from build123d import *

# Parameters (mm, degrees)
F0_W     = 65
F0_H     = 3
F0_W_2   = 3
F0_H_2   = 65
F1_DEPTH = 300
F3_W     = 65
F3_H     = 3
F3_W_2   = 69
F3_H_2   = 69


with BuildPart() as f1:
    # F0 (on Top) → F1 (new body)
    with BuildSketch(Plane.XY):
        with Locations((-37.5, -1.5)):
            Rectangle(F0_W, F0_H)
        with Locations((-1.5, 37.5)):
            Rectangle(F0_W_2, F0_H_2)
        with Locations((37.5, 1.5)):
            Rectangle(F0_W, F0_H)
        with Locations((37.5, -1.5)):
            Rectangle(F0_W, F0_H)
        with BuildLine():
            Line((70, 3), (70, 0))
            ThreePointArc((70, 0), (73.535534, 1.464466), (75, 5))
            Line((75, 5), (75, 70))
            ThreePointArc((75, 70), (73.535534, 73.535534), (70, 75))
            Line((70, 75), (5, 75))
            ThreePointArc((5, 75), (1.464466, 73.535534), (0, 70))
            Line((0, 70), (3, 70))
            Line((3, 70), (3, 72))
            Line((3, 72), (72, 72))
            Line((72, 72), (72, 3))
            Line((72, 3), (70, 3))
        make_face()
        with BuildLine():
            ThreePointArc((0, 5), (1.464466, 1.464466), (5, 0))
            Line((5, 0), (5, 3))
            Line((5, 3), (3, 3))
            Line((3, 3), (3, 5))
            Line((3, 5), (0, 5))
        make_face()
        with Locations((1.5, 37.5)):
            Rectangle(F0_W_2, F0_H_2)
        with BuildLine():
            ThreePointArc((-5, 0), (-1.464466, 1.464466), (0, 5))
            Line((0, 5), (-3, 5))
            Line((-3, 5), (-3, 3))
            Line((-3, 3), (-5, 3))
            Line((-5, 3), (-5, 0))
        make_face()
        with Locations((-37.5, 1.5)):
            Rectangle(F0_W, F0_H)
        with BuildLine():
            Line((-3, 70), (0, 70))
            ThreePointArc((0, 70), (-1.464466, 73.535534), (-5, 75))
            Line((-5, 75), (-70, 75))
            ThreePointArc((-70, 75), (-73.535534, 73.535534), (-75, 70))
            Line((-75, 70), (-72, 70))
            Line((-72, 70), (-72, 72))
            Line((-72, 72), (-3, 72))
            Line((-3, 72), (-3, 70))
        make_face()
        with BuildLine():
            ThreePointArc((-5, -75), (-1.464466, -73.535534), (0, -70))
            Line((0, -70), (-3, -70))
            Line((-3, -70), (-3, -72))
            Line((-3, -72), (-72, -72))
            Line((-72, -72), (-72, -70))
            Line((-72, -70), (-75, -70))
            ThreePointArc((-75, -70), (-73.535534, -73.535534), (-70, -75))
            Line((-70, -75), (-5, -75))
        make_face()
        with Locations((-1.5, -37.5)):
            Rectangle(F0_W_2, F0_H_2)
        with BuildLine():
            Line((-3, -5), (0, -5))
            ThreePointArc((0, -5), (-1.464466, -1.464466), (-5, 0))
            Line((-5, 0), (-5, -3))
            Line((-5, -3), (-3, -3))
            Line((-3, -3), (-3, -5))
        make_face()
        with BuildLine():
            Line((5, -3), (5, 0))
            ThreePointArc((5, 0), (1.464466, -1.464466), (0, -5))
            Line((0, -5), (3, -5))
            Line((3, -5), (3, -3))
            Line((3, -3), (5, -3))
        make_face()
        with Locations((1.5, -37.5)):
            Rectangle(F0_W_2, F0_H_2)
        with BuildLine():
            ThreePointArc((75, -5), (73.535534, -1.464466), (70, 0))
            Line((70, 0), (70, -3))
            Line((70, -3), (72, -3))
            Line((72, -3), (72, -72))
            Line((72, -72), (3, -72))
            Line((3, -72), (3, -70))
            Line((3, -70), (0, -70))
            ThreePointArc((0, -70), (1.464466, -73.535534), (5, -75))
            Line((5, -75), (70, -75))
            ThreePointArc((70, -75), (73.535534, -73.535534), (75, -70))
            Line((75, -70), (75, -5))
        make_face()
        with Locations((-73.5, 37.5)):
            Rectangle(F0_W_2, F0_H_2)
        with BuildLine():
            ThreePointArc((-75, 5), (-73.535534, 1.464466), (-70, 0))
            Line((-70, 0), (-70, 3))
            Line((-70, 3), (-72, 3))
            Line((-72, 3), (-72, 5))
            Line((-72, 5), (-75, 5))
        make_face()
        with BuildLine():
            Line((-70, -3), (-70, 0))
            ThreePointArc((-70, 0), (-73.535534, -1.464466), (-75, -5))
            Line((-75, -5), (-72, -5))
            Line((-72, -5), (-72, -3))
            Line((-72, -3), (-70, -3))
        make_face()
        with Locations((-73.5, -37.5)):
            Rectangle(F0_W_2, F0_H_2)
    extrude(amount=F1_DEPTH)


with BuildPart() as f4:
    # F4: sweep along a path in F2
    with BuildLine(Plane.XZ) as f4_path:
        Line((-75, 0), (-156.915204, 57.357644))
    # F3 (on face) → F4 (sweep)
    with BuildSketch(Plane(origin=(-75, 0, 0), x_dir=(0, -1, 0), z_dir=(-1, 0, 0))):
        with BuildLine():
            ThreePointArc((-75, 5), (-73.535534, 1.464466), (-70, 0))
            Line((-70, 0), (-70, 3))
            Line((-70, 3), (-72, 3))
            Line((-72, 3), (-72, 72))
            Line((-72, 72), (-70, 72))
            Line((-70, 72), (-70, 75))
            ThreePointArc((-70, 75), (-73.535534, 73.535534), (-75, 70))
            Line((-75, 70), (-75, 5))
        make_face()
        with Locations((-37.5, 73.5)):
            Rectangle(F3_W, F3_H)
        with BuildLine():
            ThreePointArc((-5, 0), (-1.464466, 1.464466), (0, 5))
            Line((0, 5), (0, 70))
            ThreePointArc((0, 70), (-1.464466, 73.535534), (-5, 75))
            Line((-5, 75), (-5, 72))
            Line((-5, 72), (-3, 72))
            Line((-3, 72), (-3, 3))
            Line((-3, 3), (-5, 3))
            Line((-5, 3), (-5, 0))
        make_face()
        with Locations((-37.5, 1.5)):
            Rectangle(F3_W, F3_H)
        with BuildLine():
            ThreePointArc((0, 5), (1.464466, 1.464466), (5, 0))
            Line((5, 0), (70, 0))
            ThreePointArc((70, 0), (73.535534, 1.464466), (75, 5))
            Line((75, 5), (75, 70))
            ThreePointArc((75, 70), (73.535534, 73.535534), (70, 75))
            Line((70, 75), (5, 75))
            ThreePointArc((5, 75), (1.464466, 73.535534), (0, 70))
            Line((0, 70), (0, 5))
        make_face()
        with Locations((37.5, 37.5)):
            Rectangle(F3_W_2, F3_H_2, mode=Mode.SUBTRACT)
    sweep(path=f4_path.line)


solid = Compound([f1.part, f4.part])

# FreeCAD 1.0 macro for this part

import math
import FreeCAD as App
import Part
import Sketcher
Q = App.Units.Quantity

doc = App.newDocument("Part")
body = doc.addObject("PartDesign::Body", "Body")

# Sketch on XY plane
sketch1 = body.newObject("Sketcher::SketchObject", "Sketch")
sketch1.AttachmentSupport = (doc.getObject("XY_Plane"), [""])
sketch1.MapMode = "FlatFace"
sketch1.addGeometry([
    Part.ArcOfCircle(Part.Circle(App.Vector(-5, -70, 0), App.Vector(0, 0, 1), 5), math.radians(-90), math.radians(0)),  # 0
    Part.ArcOfCircle(Part.Circle(App.Vector(5, -70, 0), App.Vector(0, 0, 1), 5), math.radians(180), math.radians(270)),  # 1
    Part.LineSegment(App.Vector(5, -75, 0), App.Vector(70, -75, 0)),  # 2
    Part.ArcOfCircle(Part.Circle(App.Vector(70, -70, 0), App.Vector(0, 0, 1), 5), math.radians(-90), math.radians(0)),  # 3
    Part.LineSegment(App.Vector(75, -70, 0), App.Vector(75, -5, 0)),  # 4
    Part.ArcOfCircle(Part.Circle(App.Vector(70, -5, 0), App.Vector(0, 0, 1), 5), math.radians(0), math.radians(90)),  # 5
    Part.ArcOfCircle(Part.Circle(App.Vector(70, 5, 0), App.Vector(0, 0, 1), 5), math.radians(-90), math.radians(0)),  # 6
    Part.LineSegment(App.Vector(75, 5, 0), App.Vector(75, 70, 0)),  # 7
    Part.ArcOfCircle(Part.Circle(App.Vector(70, 70, 0), App.Vector(0, 0, 1), 5), math.radians(0), math.radians(90)),  # 8
    Part.LineSegment(App.Vector(70, 75, 0), App.Vector(5, 75, 0)),  # 9
    Part.ArcOfCircle(Part.Circle(App.Vector(5, 70, 0), App.Vector(0, 0, 1), 5), math.radians(90), math.radians(180)),  # 10
    Part.ArcOfCircle(Part.Circle(App.Vector(-5, 70, 0), App.Vector(0, 0, 1), 5), math.radians(0), math.radians(90)),  # 11
    Part.LineSegment(App.Vector(-5, 75, 0), App.Vector(-70, 75, 0)),  # 12
    Part.ArcOfCircle(Part.Circle(App.Vector(-70, 70, 0), App.Vector(0, 0, 1), 5), math.radians(90), math.radians(180)),  # 13
    Part.LineSegment(App.Vector(-75, 70, 0), App.Vector(-75, 5, 0)),  # 14
    Part.ArcOfCircle(Part.Circle(App.Vector(-70, 5, 0), App.Vector(0, 0, 1), 5), math.radians(180), math.radians(270)),  # 15
    Part.ArcOfCircle(Part.Circle(App.Vector(-70, -5, 0), App.Vector(0, 0, 1), 5), math.radians(90), math.radians(180)),  # 16
    Part.LineSegment(App.Vector(-75, -5, 0), App.Vector(-75, -70, 0)),  # 17
    Part.ArcOfCircle(Part.Circle(App.Vector(-70, -70, 0), App.Vector(0, 0, 1), 5), math.radians(180), math.radians(270)),  # 18
    Part.LineSegment(App.Vector(-70, -75, 0), App.Vector(-5, -75, 0)),  # 19
    Part.LineSegment(App.Vector(-72, -3, 0), App.Vector(-3, -3, 0)),  # 20
    Part.LineSegment(App.Vector(-3, -3, 0), App.Vector(-3, -72, 0)),  # 21
    Part.LineSegment(App.Vector(-3, -72, 0), App.Vector(-72, -72, 0)),  # 22
    Part.LineSegment(App.Vector(-72, -72, 0), App.Vector(-72, -3, 0)),  # 23
    Part.LineSegment(App.Vector(-72, 72, 0), App.Vector(-3, 72, 0)),  # 24
    Part.LineSegment(App.Vector(-3, 72, 0), App.Vector(-3, 3, 0)),  # 25
    Part.LineSegment(App.Vector(-3, 3, 0), App.Vector(-72, 3, 0)),  # 26
    Part.LineSegment(App.Vector(-72, 3, 0), App.Vector(-72, 72, 0)),  # 27
    Part.LineSegment(App.Vector(3, -3, 0), App.Vector(72, -3, 0)),  # 28
    Part.LineSegment(App.Vector(72, -3, 0), App.Vector(72, -72, 0)),  # 29
    Part.LineSegment(App.Vector(72, -72, 0), App.Vector(3, -72, 0)),  # 30
    Part.LineSegment(App.Vector(3, -72, 0), App.Vector(3, -3, 0)),  # 31
    Part.ArcOfCircle(Part.Circle(App.Vector(5, -5, 0), App.Vector(0, 0, 1), 5), math.radians(90), math.radians(180)),  # 32
    Part.ArcOfCircle(Part.Circle(App.Vector(-5, -5, 0), App.Vector(0, 0, 1), 5), math.radians(0), math.radians(90)),  # 33
    Part.ArcOfCircle(Part.Circle(App.Vector(-5, 5, 0), App.Vector(0, 0, 1), 5), math.radians(-90), math.radians(0)),  # 34
    Part.ArcOfCircle(Part.Circle(App.Vector(5, 5, 0), App.Vector(0, 0, 1), 5), math.radians(180), math.radians(270)),  # 35
    Part.LineSegment(App.Vector(3, 3, 0), App.Vector(3, 72, 0)),  # 36
    Part.LineSegment(App.Vector(3, 72, 0), App.Vector(72, 72, 0)),  # 37
    Part.LineSegment(App.Vector(72, 72, 0), App.Vector(72, 3, 0)),  # 38
    Part.LineSegment(App.Vector(72, 3, 0), App.Vector(3, 3, 0)),  # 39
], False)
sketch1.addConstraint([
    Sketcher.Constraint("Tangent", 0, 2, 1, 1),
    Sketcher.Constraint("Tangent", 1, 2, 2, 1),
    Sketcher.Constraint("Tangent", 2, 2, 3, 1),
    Sketcher.Constraint("Tangent", 3, 2, 4, 1),
    Sketcher.Constraint("Tangent", 4, 2, 5, 1),
    Sketcher.Constraint("Tangent", 5, 2, 6, 1),
    Sketcher.Constraint("Tangent", 6, 2, 7, 1),
    Sketcher.Constraint("Tangent", 7, 2, 8, 1),
    Sketcher.Constraint("Tangent", 8, 2, 9, 1),
    Sketcher.Constraint("Tangent", 9, 2, 10, 1),
    Sketcher.Constraint("Tangent", 10, 2, 11, 1),
    Sketcher.Constraint("Tangent", 11, 2, 12, 1),
    Sketcher.Constraint("Tangent", 12, 2, 13, 1),
    Sketcher.Constraint("Tangent", 13, 2, 14, 1),
    Sketcher.Constraint("Tangent", 14, 2, 15, 1),
    Sketcher.Constraint("Tangent", 15, 2, 16, 1),
    Sketcher.Constraint("Tangent", 16, 2, 17, 1),
    Sketcher.Constraint("Tangent", 17, 2, 18, 1),
    Sketcher.Constraint("Tangent", 18, 2, 19, 1),
    Sketcher.Constraint("Tangent", 19, 2, 0, 1),
    Sketcher.Constraint("Coincident", 20, 2, 21, 1),
    Sketcher.Constraint("Coincident", 21, 2, 22, 1),
    Sketcher.Constraint("Coincident", 22, 2, 23, 1),
    Sketcher.Constraint("Coincident", 23, 2, 20, 1),
    Sketcher.Constraint("Coincident", 24, 2, 25, 1),
    Sketcher.Constraint("Coincident", 25, 2, 26, 1),
    Sketcher.Constraint("Coincident", 26, 2, 27, 1),
    Sketcher.Constraint("Coincident", 27, 2, 24, 1),
    Sketcher.Constraint("Coincident", 28, 2, 29, 1),
    Sketcher.Constraint("Coincident", 29, 2, 30, 1),
    Sketcher.Constraint("Coincident", 30, 2, 31, 1),
    Sketcher.Constraint("Coincident", 31, 2, 28, 1),
    Sketcher.Constraint("Tangent", 32, 2, 33, 1),
    Sketcher.Constraint("Tangent", 33, 2, 34, 1),
    Sketcher.Constraint("Tangent", 34, 2, 35, 1),
    Sketcher.Constraint("Tangent", 35, 2, 32, 1),
    Sketcher.Constraint("Coincident", 36, 2, 37, 1),
    Sketcher.Constraint("Coincident", 37, 2, 38, 1),
    Sketcher.Constraint("Coincident", 38, 2, 39, 1),
    Sketcher.Constraint("Coincident", 39, 2, 36, 1),
    Sketcher.Constraint("Horizontal", 2),
    Sketcher.Constraint("Vertical", 4),
    Sketcher.Constraint("Vertical", 7),
    Sketcher.Constraint("Horizontal", 9),
    Sketcher.Constraint("Horizontal", 12),
    Sketcher.Constraint("Vertical", 14),
    Sketcher.Constraint("Vertical", 17),
    Sketcher.Constraint("Horizontal", 19),
    Sketcher.Constraint("Horizontal", 20),
    Sketcher.Constraint("Vertical", 21),
    Sketcher.Constraint("Horizontal", 22),
    Sketcher.Constraint("Vertical", 23),
    Sketcher.Constraint("Horizontal", 24),
    Sketcher.Constraint("Vertical", 25),
    Sketcher.Constraint("Horizontal", 26),
    Sketcher.Constraint("Vertical", 27),
    Sketcher.Constraint("Horizontal", 28),
    Sketcher.Constraint("Vertical", 29),
    Sketcher.Constraint("Horizontal", 30),
    Sketcher.Constraint("Vertical", 31),
    Sketcher.Constraint("Vertical", 36),
    Sketcher.Constraint("Horizontal", 37),
    Sketcher.Constraint("Vertical", 38),
    Sketcher.Constraint("Horizontal", 39),
    Sketcher.Constraint("Equal", 0, 1),
    Sketcher.Constraint("Equal", 1, 3),
    Sketcher.Constraint("Equal", 3, 5),
    Sketcher.Constraint("Equal", 5, 6),
    Sketcher.Constraint("Equal", 6, 8),
    Sketcher.Constraint("Equal", 8, 10),
    Sketcher.Constraint("Equal", 10, 11),
    Sketcher.Constraint("Equal", 11, 13),
    Sketcher.Constraint("Equal", 13, 15),
    Sketcher.Constraint("Equal", 15, 16),
    Sketcher.Constraint("Equal", 16, 18),
    Sketcher.Constraint("Equal", 18, 32),
    Sketcher.Constraint("Equal", 32, 33),
    Sketcher.Constraint("Equal", 33, 34),
    Sketcher.Constraint("Equal", 34, 35),
    Sketcher.Constraint("Symmetric", 0, 3, 10, 3, -1, 1),
    Sketcher.Constraint("Symmetric", 3, 3, 13, 3, -1, 1),
    Sketcher.Constraint("Symmetric", 6, 3, 16, 3, -1, 1),
    Sketcher.Constraint("Symmetric", 32, 3, 34, 3, -1, 1),
    Sketcher.Constraint("Symmetric", 26, 2, 28, 2, -1, 1),
    Sketcher.Constraint("Symmetric", 24, 2, 30, 2, -1, 1),
    Sketcher.Constraint("Symmetric", 21, 2, 36, 2, -1, 1),
    Sketcher.Constraint("Symmetric", 23, 2, 38, 2, -1, 1),
    Sketcher.Constraint("Symmetric", 0, 3, 1, 3, -2),
    Sketcher.Constraint("Symmetric", 6, 3, 15, 3, -2),
    Sketcher.Constraint("Symmetric", 32, 3, 33, 3, -2),
    Sketcher.Constraint("Symmetric", 23, 2, 28, 2, -2),
    Sketcher.Constraint("Symmetric", 21, 2, 30, 2, -2),
    Sketcher.Constraint("Equal", 19, 4),
    Sketcher.Constraint("Equal", 39, 21),
    Sketcher.Constraint("Radius", 0, Q("5 mm")),
    Sketcher.Constraint("DistanceX", 2, 1, 2, 2, Q("65 mm")),
    Sketcher.Constraint("DistanceX", 20, 1, 20, 2, Q("69 mm")),
    Sketcher.Constraint("DistanceX", 20, 2, -1, 1, Q("3 mm")),
    Sketcher.Constraint("DistanceY", 20, 2, -1, 1, Q("3 mm")),
])
pad1 = body.newObject("PartDesign::Pad", "Pad")
pad1.Profile = sketch1
pad1.Length = 300
body2 = doc.addObject("PartDesign::Body", "Body001")

# Sketch on YZ plane
sketch2 = body2.newObject("Sketcher::SketchObject", "Sketch001")
sketch2.AttachmentSupport = (doc.getObject("YZ_Plane001"), [""])
sketch2.MapMode = "FlatFace"
sketch2.AttachmentOffset = App.Placement(App.Vector(0, 0, -75), App.Rotation())
sketch2.addGeometry([
    Part.ArcOfCircle(Part.Circle(App.Vector(70, 5, 0), App.Vector(0, 0, 1), 5), math.radians(-90), math.radians(0)),  # 0
    Part.LineSegment(App.Vector(70, 0, 0), App.Vector(5, 0, 0)),  # 1
    Part.ArcOfCircle(Part.Circle(App.Vector(5, 5, 0), App.Vector(0, 0, 1), 5), math.radians(180), math.radians(270)),  # 2
    Part.ArcOfCircle(Part.Circle(App.Vector(-5, 5, 0), App.Vector(0, 0, 1), 5), math.radians(-90), math.radians(0)),  # 3
    Part.LineSegment(App.Vector(-5, 0, 0), App.Vector(-70, 0, 0)),  # 4
    Part.ArcOfCircle(Part.Circle(App.Vector(-70, 5, 0), App.Vector(0, 0, 1), 5), math.radians(180), math.radians(270)),  # 5
    Part.LineSegment(App.Vector(-75, 5, 0), App.Vector(-75, 70, 0)),  # 6
    Part.ArcOfCircle(Part.Circle(App.Vector(-70, 70, 0), App.Vector(0, 0, 1), 5), math.radians(90), math.radians(180)),  # 7
    Part.LineSegment(App.Vector(-70, 75, 0), App.Vector(-5, 75, 0)),  # 8
    Part.ArcOfCircle(Part.Circle(App.Vector(-5, 70, 0), App.Vector(0, 0, 1), 5), math.radians(0), math.radians(90)),  # 9
    Part.ArcOfCircle(Part.Circle(App.Vector(5, 70, 0), App.Vector(0, 0, 1), 5), math.radians(90), math.radians(180)),  # 10
    Part.LineSegment(App.Vector(5, 75, 0), App.Vector(70, 75, 0)),  # 11
    Part.ArcOfCircle(Part.Circle(App.Vector(70, 70, 0), App.Vector(0, 0, 1), 5), math.radians(0), math.radians(90)),  # 12
    Part.LineSegment(App.Vector(75, 70, 0), App.Vector(75, 5, 0)),  # 13
    Part.LineSegment(App.Vector(72, 3, 0), App.Vector(72, 72, 0)),  # 14
    Part.LineSegment(App.Vector(72, 72, 0), App.Vector(3, 72, 0)),  # 15
    Part.LineSegment(App.Vector(3, 72, 0), App.Vector(3, 3, 0)),  # 16
    Part.LineSegment(App.Vector(3, 3, 0), App.Vector(72, 3, 0)),  # 17
    Part.LineSegment(App.Vector(-72, 3, 0), App.Vector(-3, 3, 0)),  # 18
    Part.LineSegment(App.Vector(-3, 3, 0), App.Vector(-3, 72, 0)),  # 19
    Part.LineSegment(App.Vector(-3, 72, 0), App.Vector(-72, 72, 0)),  # 20
    Part.LineSegment(App.Vector(-72, 72, 0), App.Vector(-72, 3, 0)),  # 21
], False)
sketch2.addConstraint([
    Sketcher.Constraint("Tangent", 0, 1, 1, 1),
    Sketcher.Constraint("Tangent", 1, 2, 2, 2),
    Sketcher.Constraint("Tangent", 2, 1, 3, 2),
    Sketcher.Constraint("Tangent", 3, 1, 4, 1),
    Sketcher.Constraint("Tangent", 4, 2, 5, 2),
    Sketcher.Constraint("Tangent", 5, 1, 6, 1),
    Sketcher.Constraint("Tangent", 6, 2, 7, 2),
    Sketcher.Constraint("Tangent", 7, 1, 8, 1),
    Sketcher.Constraint("Tangent", 8, 2, 9, 2),
    Sketcher.Constraint("Tangent", 9, 1, 10, 2),
    Sketcher.Constraint("Tangent", 10, 1, 11, 1),
    Sketcher.Constraint("Tangent", 11, 2, 12, 2),
    Sketcher.Constraint("Tangent", 12, 1, 13, 1),
    Sketcher.Constraint("Tangent", 13, 2, 0, 2),
    Sketcher.Constraint("Coincident", 14, 2, 15, 1),
    Sketcher.Constraint("Coincident", 15, 2, 16, 1),
    Sketcher.Constraint("Coincident", 16, 2, 17, 1),
    Sketcher.Constraint("Coincident", 17, 2, 14, 1),
    Sketcher.Constraint("Coincident", 18, 2, 19, 1),
    Sketcher.Constraint("Coincident", 19, 2, 20, 1),
    Sketcher.Constraint("Coincident", 20, 2, 21, 1),
    Sketcher.Constraint("Coincident", 21, 2, 18, 1),
    Sketcher.Constraint("Horizontal", 1),
    Sketcher.Constraint("Horizontal", 4),
    Sketcher.Constraint("Vertical", 6),
    Sketcher.Constraint("Horizontal", 8),
    Sketcher.Constraint("Horizontal", 11),
    Sketcher.Constraint("Vertical", 13),
    Sketcher.Constraint("Vertical", 14),
    Sketcher.Constraint("Horizontal", 15),
    Sketcher.Constraint("Vertical", 16),
    Sketcher.Constraint("Horizontal", 17),
    Sketcher.Constraint("Horizontal", 18),
    Sketcher.Constraint("Vertical", 19),
    Sketcher.Constraint("Horizontal", 20),
    Sketcher.Constraint("Vertical", 21),
    Sketcher.Constraint("Equal", 0, 2),
    Sketcher.Constraint("Equal", 2, 3),
    Sketcher.Constraint("Equal", 3, 5),
    Sketcher.Constraint("Equal", 5, 7),
    Sketcher.Constraint("Equal", 7, 9),
    Sketcher.Constraint("Equal", 9, 10),
    Sketcher.Constraint("Equal", 10, 12),
    Sketcher.Constraint("Symmetric", 1, 2, 3, 1, -1, 1),
    Sketcher.Constraint("Symmetric", 0, 3, 5, 3, -2),
    Sketcher.Constraint("Symmetric", 9, 3, 10, 3, -2),
    Sketcher.Constraint("Symmetric", 16, 2, 18, 2, -2),
    Sketcher.Constraint("Symmetric", 14, 2, 20, 2, -2),
    Sketcher.Constraint("Equal", 11, 6),
    Sketcher.Constraint("Equal", 20, 14),
    Sketcher.Constraint("Radius", 0, Q("5 mm")),
    Sketcher.Constraint("DistanceX", 1, 2, 1, 1, Q("65 mm")),
    Sketcher.Constraint("DistanceX", 15, 2, 15, 1, Q("69 mm")),
    Sketcher.Constraint("DistanceX", -1, 1, 14, 2, Q("72 mm")),
    Sketcher.Constraint("DistanceY", -1, 1, 14, 2, Q("72 mm")),
])

# Sketch on an angled plane
sketch3 = body2.newObject("Sketcher::SketchObject", "Sketch002")
sketch3.Placement = App.Placement(App.Vector(-24.674245, 0, -35.238473), App.Rotation(App.Vector(-0.819152041, 0, 0.573576441), App.Vector(0, 1, 0), App.Vector(-0.573576441, 0, -0.819152041), "ZXY"))
sketch3.addGeometry(Part.LineSegment(App.Vector(61, 0, 0), App.Vector(161, 0, 0)), False)
sketch3.addConstraint([
    Sketcher.Constraint("Horizontal", 0),
    Sketcher.Constraint("PointOnObject", 0, 1, -1),
    Sketcher.Constraint("DistanceX", 0, 1, 0, 2, Q("100 mm")),
    Sketcher.Constraint("DistanceX", -1, 1, 0, 1, Q("61.436403 mm")),
])
doc.recompute()

additivepipe = body2.newObject("PartDesign::AdditivePipe", "AdditivePipe")
additivepipe.Profile = sketch2
additivepipe.Spine = (sketch3, ["Edge1"])

doc.recompute()
